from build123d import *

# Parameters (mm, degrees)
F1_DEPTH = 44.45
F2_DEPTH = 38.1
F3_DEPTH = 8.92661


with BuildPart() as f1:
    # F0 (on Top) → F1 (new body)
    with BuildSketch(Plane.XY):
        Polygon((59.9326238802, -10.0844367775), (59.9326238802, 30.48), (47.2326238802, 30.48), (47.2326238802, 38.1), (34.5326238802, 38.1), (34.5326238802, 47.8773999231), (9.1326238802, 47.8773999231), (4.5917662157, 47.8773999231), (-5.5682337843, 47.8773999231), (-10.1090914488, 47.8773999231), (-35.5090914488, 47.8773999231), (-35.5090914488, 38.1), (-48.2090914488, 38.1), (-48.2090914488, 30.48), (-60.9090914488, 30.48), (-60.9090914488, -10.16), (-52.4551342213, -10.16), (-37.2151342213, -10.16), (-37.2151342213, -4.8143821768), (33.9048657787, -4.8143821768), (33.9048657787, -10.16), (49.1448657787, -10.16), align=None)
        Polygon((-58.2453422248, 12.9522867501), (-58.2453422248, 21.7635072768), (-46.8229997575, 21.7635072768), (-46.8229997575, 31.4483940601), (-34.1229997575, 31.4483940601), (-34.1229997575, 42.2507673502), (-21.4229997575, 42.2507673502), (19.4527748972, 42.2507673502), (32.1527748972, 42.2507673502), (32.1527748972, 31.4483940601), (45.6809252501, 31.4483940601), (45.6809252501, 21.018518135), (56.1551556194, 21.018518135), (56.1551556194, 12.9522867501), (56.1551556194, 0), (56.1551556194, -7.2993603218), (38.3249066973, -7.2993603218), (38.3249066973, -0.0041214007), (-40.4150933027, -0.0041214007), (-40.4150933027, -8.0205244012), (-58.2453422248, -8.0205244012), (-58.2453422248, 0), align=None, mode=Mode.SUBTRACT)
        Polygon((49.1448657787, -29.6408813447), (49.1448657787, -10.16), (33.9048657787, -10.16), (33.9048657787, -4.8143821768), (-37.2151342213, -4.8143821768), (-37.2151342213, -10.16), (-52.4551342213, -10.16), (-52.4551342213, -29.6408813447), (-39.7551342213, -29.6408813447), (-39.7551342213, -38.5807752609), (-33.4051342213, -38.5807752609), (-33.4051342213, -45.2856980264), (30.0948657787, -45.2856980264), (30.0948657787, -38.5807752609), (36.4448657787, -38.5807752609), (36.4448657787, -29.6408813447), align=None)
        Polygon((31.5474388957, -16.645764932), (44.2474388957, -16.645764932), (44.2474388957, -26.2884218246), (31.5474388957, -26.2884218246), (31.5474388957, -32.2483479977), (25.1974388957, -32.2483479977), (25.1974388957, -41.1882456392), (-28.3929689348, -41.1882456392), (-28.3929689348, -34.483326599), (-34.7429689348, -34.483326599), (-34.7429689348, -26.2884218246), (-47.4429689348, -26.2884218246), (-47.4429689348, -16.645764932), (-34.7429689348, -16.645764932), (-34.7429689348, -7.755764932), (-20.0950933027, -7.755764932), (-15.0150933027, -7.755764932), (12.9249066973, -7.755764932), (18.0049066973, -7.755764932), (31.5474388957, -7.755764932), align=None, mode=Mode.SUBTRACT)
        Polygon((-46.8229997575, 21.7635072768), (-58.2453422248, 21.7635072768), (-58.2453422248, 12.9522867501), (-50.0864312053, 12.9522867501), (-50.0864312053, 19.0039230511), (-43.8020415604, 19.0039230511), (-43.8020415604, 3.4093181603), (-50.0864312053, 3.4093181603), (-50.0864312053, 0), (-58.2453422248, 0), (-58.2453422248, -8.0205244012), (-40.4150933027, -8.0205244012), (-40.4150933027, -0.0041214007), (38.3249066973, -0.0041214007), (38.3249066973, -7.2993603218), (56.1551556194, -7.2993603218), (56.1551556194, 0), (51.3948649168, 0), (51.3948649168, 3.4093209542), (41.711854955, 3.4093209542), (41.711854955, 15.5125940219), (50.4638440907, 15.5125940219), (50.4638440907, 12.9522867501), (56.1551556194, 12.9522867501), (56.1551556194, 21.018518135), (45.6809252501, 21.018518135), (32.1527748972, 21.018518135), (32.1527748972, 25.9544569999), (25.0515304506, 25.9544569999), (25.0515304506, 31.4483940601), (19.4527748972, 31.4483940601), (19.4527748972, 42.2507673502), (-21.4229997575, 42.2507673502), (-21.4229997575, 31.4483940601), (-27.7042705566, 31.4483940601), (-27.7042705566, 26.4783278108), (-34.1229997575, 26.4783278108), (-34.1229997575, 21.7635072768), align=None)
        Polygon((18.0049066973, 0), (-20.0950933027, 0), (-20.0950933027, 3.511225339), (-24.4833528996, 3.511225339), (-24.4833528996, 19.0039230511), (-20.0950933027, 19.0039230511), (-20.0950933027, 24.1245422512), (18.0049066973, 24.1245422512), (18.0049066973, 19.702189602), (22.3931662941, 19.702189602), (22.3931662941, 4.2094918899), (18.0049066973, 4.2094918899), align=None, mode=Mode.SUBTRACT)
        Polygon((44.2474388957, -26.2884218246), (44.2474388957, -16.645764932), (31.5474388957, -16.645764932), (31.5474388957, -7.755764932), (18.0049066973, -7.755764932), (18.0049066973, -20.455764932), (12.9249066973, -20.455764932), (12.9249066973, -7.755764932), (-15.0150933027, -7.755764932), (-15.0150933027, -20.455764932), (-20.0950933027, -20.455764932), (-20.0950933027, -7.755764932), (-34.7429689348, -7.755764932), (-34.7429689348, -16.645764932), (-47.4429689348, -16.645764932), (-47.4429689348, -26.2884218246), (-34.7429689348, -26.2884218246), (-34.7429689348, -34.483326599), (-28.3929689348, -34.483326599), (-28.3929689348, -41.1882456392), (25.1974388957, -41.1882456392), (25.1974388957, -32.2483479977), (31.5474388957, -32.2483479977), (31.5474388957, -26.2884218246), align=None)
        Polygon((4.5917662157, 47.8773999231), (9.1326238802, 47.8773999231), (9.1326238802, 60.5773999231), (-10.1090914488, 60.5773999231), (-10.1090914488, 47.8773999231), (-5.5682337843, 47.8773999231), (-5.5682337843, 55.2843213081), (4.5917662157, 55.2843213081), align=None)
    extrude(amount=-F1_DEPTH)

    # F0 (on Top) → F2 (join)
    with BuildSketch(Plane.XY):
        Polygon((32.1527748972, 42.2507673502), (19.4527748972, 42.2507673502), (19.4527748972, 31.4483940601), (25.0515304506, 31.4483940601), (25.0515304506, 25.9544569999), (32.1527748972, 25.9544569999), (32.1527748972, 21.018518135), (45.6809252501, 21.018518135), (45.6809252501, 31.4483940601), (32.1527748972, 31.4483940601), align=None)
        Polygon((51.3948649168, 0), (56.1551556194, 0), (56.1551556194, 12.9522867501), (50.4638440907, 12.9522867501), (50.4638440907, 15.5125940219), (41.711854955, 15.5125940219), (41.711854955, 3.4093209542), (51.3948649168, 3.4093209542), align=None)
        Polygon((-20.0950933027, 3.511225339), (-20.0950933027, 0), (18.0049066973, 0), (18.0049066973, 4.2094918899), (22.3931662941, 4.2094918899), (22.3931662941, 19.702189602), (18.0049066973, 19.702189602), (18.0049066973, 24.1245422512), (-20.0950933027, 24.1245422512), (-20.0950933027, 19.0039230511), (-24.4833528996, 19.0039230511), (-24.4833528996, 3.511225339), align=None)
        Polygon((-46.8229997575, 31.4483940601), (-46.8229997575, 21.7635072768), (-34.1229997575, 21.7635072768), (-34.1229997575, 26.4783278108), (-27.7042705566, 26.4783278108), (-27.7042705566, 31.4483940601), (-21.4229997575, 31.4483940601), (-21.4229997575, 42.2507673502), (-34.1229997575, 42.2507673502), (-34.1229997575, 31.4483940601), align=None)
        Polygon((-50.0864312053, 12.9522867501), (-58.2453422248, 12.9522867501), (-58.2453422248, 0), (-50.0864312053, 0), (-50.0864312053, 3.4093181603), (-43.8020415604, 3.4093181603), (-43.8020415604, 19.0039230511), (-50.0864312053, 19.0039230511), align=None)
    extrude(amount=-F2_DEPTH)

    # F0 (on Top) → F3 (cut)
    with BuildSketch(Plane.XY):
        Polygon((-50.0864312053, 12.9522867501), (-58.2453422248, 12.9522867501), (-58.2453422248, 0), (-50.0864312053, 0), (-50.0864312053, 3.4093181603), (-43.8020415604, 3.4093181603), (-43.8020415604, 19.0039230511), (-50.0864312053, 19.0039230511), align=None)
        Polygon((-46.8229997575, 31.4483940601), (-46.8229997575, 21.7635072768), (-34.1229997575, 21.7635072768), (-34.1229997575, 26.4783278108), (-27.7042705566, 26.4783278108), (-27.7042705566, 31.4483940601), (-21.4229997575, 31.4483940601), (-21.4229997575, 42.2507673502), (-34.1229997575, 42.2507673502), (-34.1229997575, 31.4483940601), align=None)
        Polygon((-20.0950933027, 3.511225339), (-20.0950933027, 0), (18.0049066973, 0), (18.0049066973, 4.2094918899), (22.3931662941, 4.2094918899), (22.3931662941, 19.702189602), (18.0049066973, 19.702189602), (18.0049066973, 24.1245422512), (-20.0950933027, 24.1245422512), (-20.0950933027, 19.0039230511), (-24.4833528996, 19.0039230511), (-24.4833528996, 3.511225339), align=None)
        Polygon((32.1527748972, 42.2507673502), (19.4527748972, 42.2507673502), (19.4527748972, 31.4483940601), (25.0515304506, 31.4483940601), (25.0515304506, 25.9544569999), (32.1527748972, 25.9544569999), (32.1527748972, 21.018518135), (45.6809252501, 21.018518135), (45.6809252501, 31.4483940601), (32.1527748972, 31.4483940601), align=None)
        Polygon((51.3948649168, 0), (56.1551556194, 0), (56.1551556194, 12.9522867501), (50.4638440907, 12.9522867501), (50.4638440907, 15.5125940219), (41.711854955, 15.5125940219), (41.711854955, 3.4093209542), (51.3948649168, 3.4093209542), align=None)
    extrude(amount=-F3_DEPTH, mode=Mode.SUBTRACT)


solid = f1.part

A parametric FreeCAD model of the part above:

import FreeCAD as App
import Part
import Sketcher
from FreeCAD import Vector
Q = App.Units.Quantity

doc = App.newDocument("Part")
body = doc.addObject("PartDesign::Body", "Body")

# Sketch on XY plane
sketch1 = body.newObject("Sketcher::SketchObject", "Sketch")
sketch1.AttachmentSupport = (doc.getObject("XY_Plane"), [""])
sketch1.MapMode = "FlatFace"
sketch1.addGeometry([
    Part.LineSegment(Vector(59.9, -10.1, 0), Vector(59.9, 30.5, 0)),  # 0
    Part.LineSegment(Vector(59.9, 30.5, 0), Vector(47.2, 30.5, 0)),  # 1
    Part.LineSegment(Vector(47.2, 30.5, 0), Vector(47.2, 38.1, 0)),  # 2
    Part.LineSegment(Vector(47.2, 38.1, 0), Vector(34.5, 38.1, 0)),  # 3
    Part.LineSegment(Vector(34.5, 38.1, 0), Vector(34.5, 47.9, 0)),  # 4
    Part.LineSegment(Vector(34.5, 47.9, 0), Vector(9.1, 47.9, 0)),  # 5
    Part.LineSegment(Vector(9.1, 47.9, 0), Vector(9.1, 60.6, 0)),  # 6
    Part.LineSegment(Vector(9.1, 60.6, 0), Vector(-10.1, 60.6, 0)),  # 7
    Part.LineSegment(Vector(-10.1, 60.6, 0), Vector(-10.1, 47.9, 0)),  # 8
    Part.LineSegment(Vector(-10.1, 47.9, 0), Vector(-35.5, 47.9, 0)),  # 9
    Part.LineSegment(Vector(-35.5, 47.9, 0), Vector(-35.5, 38.1, 0)),  # 10
    Part.LineSegment(Vector(-35.5, 38.1, 0), Vector(-48.2, 38.1, 0)),  # 11
    Part.LineSegment(Vector(-48.2, 38.1, 0), Vector(-48.2, 30.5, 0)),  # 12
    Part.LineSegment(Vector(-48.2, 30.5, 0), Vector(-60.9, 30.5, 0)),  # 13
    Part.LineSegment(Vector(-60.9, 30.5, 0), Vector(-60.9, -10.2, 0)),  # 14
    Part.LineSegment(Vector(-60.9, -10.2, 0), Vector(-52.5, -10.2, 0)),  # 15
    Part.LineSegment(Vector(-52.5, -10.2, 0), Vector(-52.5, -29.6, 0)),  # 16
    Part.LineSegment(Vector(-52.5, -29.6, 0), Vector(-39.8, -29.6, 0)),  # 17
    Part.LineSegment(Vector(-39.8, -29.6, 0), Vector(-39.8, -38.6, 0)),  # 18
    Part.LineSegment(Vector(-39.8, -38.6, 0), Vector(-33.4, -38.6, 0)),  # 19
    Part.LineSegment(Vector(-33.4, -38.6, 0), Vector(-33.4, -45.3, 0)),  # 20
    Part.LineSegment(Vector(-33.4, -45.3, 0), Vector(30.1, -45.3, 0)),  # 21
    Part.LineSegment(Vector(30.1, -45.3, 0), Vector(30.1, -38.6, 0)),  # 22
    Part.LineSegment(Vector(30.1, -38.6, 0), Vector(36.4, -38.6, 0)),  # 23
    Part.LineSegment(Vector(36.4, -38.6, 0), Vector(36.4, -29.6, 0)),  # 24
    Part.LineSegment(Vector(36.4, -29.6, 0), Vector(49.1, -29.6, 0)),  # 25
    Part.LineSegment(Vector(49.1, -29.6, 0), Vector(49.1, -10.2, 0)),  # 26
    Part.LineSegment(Vector(49.1, -10.2, 0), Vector(59.9, -10.1, 0)),  # 27
    Part.LineSegment(Vector(4.6, 47.9, 0), Vector(-5.6, 47.9, 0)),  # 28
    Part.LineSegment(Vector(-5.6, 47.9, 0), Vector(-5.6, 55.3, 0)),  # 29
    Part.LineSegment(Vector(-5.6, 55.3, 0), Vector(4.6, 55.3, 0)),  # 30
    Part.LineSegment(Vector(4.6, 55.3, 0), Vector(4.6, 47.9, 0)),  # 31
    Part.LineSegment(Vector(-20.1, -7.8, 0), Vector(-15, -7.8, 0)),  # 32
    Part.LineSegment(Vector(-15, -7.8, 0), Vector(-15, -20.5, 0)),  # 33
    Part.LineSegment(Vector(-15, -20.5, 0), Vector(-20.1, -20.5, 0)),  # 34
    Part.LineSegment(Vector(-20.1, -20.5, 0), Vector(-20.1, -7.8, 0)),  # 35
    Part.LineSegment(Vector(12.9, -7.8, 0), Vector(18, -7.8, 0)),  # 36
    Part.LineSegment(Vector(18, -7.8, 0), Vector(18, -20.5, 0)),  # 37
    Part.LineSegment(Vector(18, -20.5, 0), Vector(12.9, -20.5, 0)),  # 38
    Part.LineSegment(Vector(12.9, -20.5, 0), Vector(12.9, -7.8, 0)),  # 39
    Part.LineSegment(Vector(-58.2, 0, 0), Vector(-58.2, 13, 0)),  # 40
    Part.LineSegment(Vector(-58.2, 13, 0), Vector(-50.1, 13, 0)),  # 41
    Part.LineSegment(Vector(-50.1, 13, 0), Vector(-50.1, 19, 0)),  # 42
    Part.LineSegment(Vector(-50.1, 19, 0), Vector(-43.8, 19, 0)),  # 43
    Part.LineSegment(Vector(-43.8, 19, 0), Vector(-43.8, 3.4, 0)),  # 44
    Part.LineSegment(Vector(-43.8, 3.4, 0), Vector(-50.1, 3.4, 0)),  # 45
    Part.LineSegment(Vector(-50.1, 3.4, 0), Vector(-50.1, 0, 0)),  # 46
    Part.LineSegment(Vector(-50.1, 0, 0), Vector(-58.2, 0, 0)),  # 47
    Part.LineSegment(Vector(18, 4.2, 0), Vector(18, 0, 0)),  # 48
    Part.LineSegment(Vector(18, 0, 0), Vector(-20.1, 0, 0)),  # 49
    Part.LineSegment(Vector(-20.1, 0, 0), Vector(-20.1, 3.5, 0)),  # 50
    Part.LineSegment(Vector(-20.1, 3.5, 0), Vector(-24.5, 3.5, 0)),  # 51
    Part.LineSegment(Vector(-24.5, 3.5, 0), Vector(-24.5, 19, 0)),  # 52
    Part.LineSegment(Vector(-24.5, 19, 0), Vector(-20.1, 19, 0)),  # 53
    Part.LineSegment(Vector(-20.1, 19, 0), Vector(-20.1, 24.1, 0)),  # 54
    Part.LineSegment(Vector(-20.1, 24.1, 0), Vector(18, 24.1, 0)),  # 55
    Part.LineSegment(Vector(18, 24.1, 0), Vector(18, 19.7, 0)),  # 56
    Part.LineSegment(Vector(18, 19.7, 0), Vector(22.4, 19.7, 0)),  # 57
    Part.LineSegment(Vector(22.4, 19.7, 0), Vector(22.4, 4.2, 0)),  # 58
    Part.LineSegment(Vector(22.4, 4.2, 0), Vector(18, 4.2, 0)),  # 59
    Part.LineSegment(Vector(-46.8, 21.8, 0), Vector(-46.8, 31.4, 0)),  # 60
    Part.LineSegment(Vector(-46.8, 31.4, 0), Vector(-34.1, 31.4, 0)),  # 61
    Part.LineSegment(Vector(-34.1, 31.4, 0), Vector(-34.1, 42.3, 0)),  # 62
    Part.LineSegment(Vector(-34.1, 42.3, 0), Vector(-21.4, 42.3, 0)),  # 63
    Part.LineSegment(Vector(-21.4, 42.3, 0), Vector(-21.4, 31.4, 0)),  # 64
    Part.LineSegment(Vector(-21.4, 31.4, 0), Vector(-27.7, 31.4, 0)),  # 65
    Part.LineSegment(Vector(-27.7, 31.4, 0), Vector(-27.7, 26.5, 0)),  # 66
    Part.LineSegment(Vector(-27.7, 26.5, 0), Vector(-34.1, 26.5, 0)),  # 67
    Part.LineSegment(Vector(-34.1, 26.5, 0), Vector(-34.1, 21.8, 0)),  # 68
    Part.LineSegment(Vector(-34.1, 21.8, 0), Vector(-46.8, 21.8, 0)),  # 69
    Part.LineSegment(Vector(56.2, 13, 0), Vector(56.2, 0, 0)),  # 70
    Part.LineSegment(Vector(56.2, 0, 0), Vector(51.4, 0, 0)),  # 71
    Part.LineSegment(Vector(51.4, 0, 0), Vector(51.4, 3.4, 0)),  # 72
    Part.LineSegment(Vector(51.4, 3.4, 0), Vector(41.7, 3.4, 0)),  # 73
    Part.LineSegment(Vector(41.7, 3.4, 0), Vector(41.7, 15.5, 0)),  # 74
    Part.LineSegment(Vector(41.7, 15.5, 0), Vector(50.5, 15.5, 0)),  # 75
    Part.LineSegment(Vector(50.5, 15.5, 0), Vector(50.5, 13, 0)),  # 76
    Part.LineSegment(Vector(50.5, 13, 0), Vector(56.2, 13, 0)),  # 77
    Part.LineSegment(Vector(19.5, 42.3, 0), Vector(32.2, 42.3, 0)),  # 78
    Part.LineSegment(Vector(32.2, 42.3, 0), Vector(32.2, 31.4, 0)),  # 79
    Part.LineSegment(Vector(32.2, 31.4, 0), Vector(45.7, 31.4, 0)),  # 80
    Part.LineSegment(Vector(45.7, 31.4, 0), Vector(45.7, 21, 0)),  # 81
    Part.LineSegment(Vector(45.7, 21, 0), Vector(32.2, 21, 0)),  # 82
    Part.LineSegment(Vector(32.2, 21, 0), Vector(32.2, 26, 0)),  # 83
    Part.LineSegment(Vector(32.2, 26, 0), Vector(25.1, 26, 0)),  # 84
    Part.LineSegment(Vector(25.1, 26, 0), Vector(25.1, 31.4, 0)),  # 85
    Part.LineSegment(Vector(25.1, 31.4, 0), Vector(19.5, 31.4, 0)),  # 86
    Part.LineSegment(Vector(19.5, 31.4, 0), Vector(19.5, 42.3, 0)),  # 87
], False)
sketch1.addConstraint([
    Sketcher.Constraint("Coincident", 0, 2, 1, 1),
    Sketcher.Constraint("Coincident", 1, 2, 2, 1),
    Sketcher.Constraint("Coincident", 2, 2, 3, 1),
    Sketcher.Constraint("Coincident", 3, 2, 4, 1),
    Sketcher.Constraint("Coincident", 4, 2, 5, 1),
    Sketcher.Constraint("Coincident", 5, 2, 6, 1),
    Sketcher.Constraint("Coincident", 6, 2, 7, 1),
    Sketcher.Constraint("Coincident", 7, 2, 8, 1),
    Sketcher.Constraint("Coincident", 8, 2, 9, 1),
    Sketcher.Constraint("Coincident", 9, 2, 10, 1),
    Sketcher.Constraint("Coincident", 10, 2, 11, 1),
    Sketcher.Constraint("Coincident", 11, 2, 12, 1),
    Sketcher.Constraint("Coincident", 12, 2, 13, 1),
    Sketcher.Constraint("Coincident", 13, 2, 14, 1),
    Sketcher.Constraint("Coincident", 14, 2, 15, 1),
    Sketcher.Constraint("Coincident", 15, 2, 16, 1),
    Sketcher.Constraint("Coincident", 16, 2, 17, 1),
    Sketcher.Constraint("Coincident", 17, 2, 18, 1),
    Sketcher.Constraint("Coincident", 18, 2, 19, 1),
    Sketcher.Constraint("Coincident", 19, 2, 20, 1),
    Sketcher.Constraint("Coincident", 20, 2, 21, 1),
    Sketcher.Constraint("Coincident", 21, 2, 22, 1),
    Sketcher.Constraint("Coincident", 22, 2, 23, 1),
    Sketcher.Constraint("Coincident", 23, 2, 24, 1),
    Sketcher.Constraint("Coincident", 24, 2, 25, 1),
    Sketcher.Constraint("Coincident", 25, 2, 26, 1),
    Sketcher.Constraint("Coincident", 26, 2, 27, 1),
    Sketcher.Constraint("Coincident", 27, 2, 0, 1),
    Sketcher.Constraint("Coincident", 28, 2, 29, 1),
    Sketcher.Constraint("Coincident", 29, 2, 30, 1),
    Sketcher.Constraint("Coincident", 30, 2, 31, 1),
    Sketcher.Constraint("Coincident", 31, 2, 28, 1),
    Sketcher.Constraint("Coincident", 32, 2, 33, 1),
    Sketcher.Constraint("Coincident", 33, 2, 34, 1),
    Sketcher.Constraint("Coincident", 34, 2, 35, 1),
    Sketcher.Constraint("Coincident", 35, 2, 32, 1),
    Sketcher.Constraint("Coincident", 36, 2, 37, 1),
    Sketcher.Constraint("Coincident", 37, 2, 38, 1),
    Sketcher.Constraint("Coincident", 38, 2, 39, 1),
    Sketcher.Constraint("Coincident", 39, 2, 36, 1),
    Sketcher.Constraint("Coincident", 40, 2, 41, 1),
    Sketcher.Constraint("Coincident", 41, 2, 42, 1),
    Sketcher.Constraint("Coincident", 42, 2, 43, 1),
    Sketcher.Constraint("Coincident", 43, 2, 44, 1),
    Sketcher.Constraint("Coincident", 44, 2, 45, 1),
    Sketcher.Constraint("Coincident", 45, 2, 46, 1),
    Sketcher.Constraint("Coincident", 46, 2, 47, 1),
    Sketcher.Constraint("Coincident", 47, 2, 40, 1),
    Sketcher.Constraint("Coincident", 48, 2, 49, 1),
    Sketcher.Constraint("Coincident", 49, 2, 50, 1),
    Sketcher.Constraint("Coincident", 50, 2, 51, 1),
    Sketcher.Constraint("Coincident", 51, 2, 52, 1),
    Sketcher.Constraint("Coincident", 52, 2, 53, 1),
    Sketcher.Constraint("Coincident", 53, 2, 54, 1),
    Sketcher.Constraint("Coincident", 54, 2, 55, 1),
    Sketcher.Constraint("Coincident", 55, 2, 56, 1),
    Sketcher.Constraint("Coincident", 56, 2, 57, 1),
    Sketcher.Constraint("Coincident", 57, 2, 58, 1),
    Sketcher.Constraint("Coincident", 58, 2, 59, 1),
    Sketcher.Constraint("Coincident", 59, 2, 48, 1),
    Sketcher.Constraint("Coincident", 60, 2, 61, 1),
    Sketcher.Constraint("Coincident", 61, 2, 62, 1),
    Sketcher.Constraint("Coincident", 62, 2, 63, 1),
    Sketcher.Constraint("Coincident", 63, 2, 64, 1),
    Sketcher.Constraint("Coincident", 64, 2, 65, 1),
    Sketcher.Constraint("Coincident", 65, 2, 66, 1),
    Sketcher.Constraint("Coincident", 66, 2, 67, 1),
    Sketcher.Constraint("Coincident", 67, 2, 68, 1),
    Sketcher.Constraint("Coincident", 68, 2, 69, 1),
    Sketcher.Constraint("Coincident", 69, 2, 60, 1),
    Sketcher.Constraint("Coincident", 70, 2, 71, 1),
    Sketcher.Constraint("Coincident", 71, 2, 72, 1),
    Sketcher.Constraint("Coincident", 72, 2, 73, 1),
    Sketcher.Constraint("Coincident", 73, 2, 74, 1),
    Sketcher.Constraint("Coincident", 74, 2, 75, 1),
    Sketcher.Constraint("Coincident", 75, 2, 76, 1),
    Sketcher.Constraint("Coincident", 76, 2, 77, 1),
    Sketcher.Constraint("Coincident", 77, 2, 70, 1),
    Sketcher.Constraint("Coincident", 78, 2, 79, 1),
    Sketcher.Constraint("Coincident", 79, 2, 80, 1),
    Sketcher.Constraint("Coincident", 80, 2, 81, 1),
    Sketcher.Constraint("Coincident", 81, 2, 82, 1),
    Sketcher.Constraint("Coincident", 82, 2, 83, 1),
    Sketcher.Constraint("Coincident", 83, 2, 84, 1),
    Sketcher.Constraint("Coincident", 84, 2, 85, 1),
    Sketcher.Constraint("Coincident", 85, 2, 86, 1),
    Sketcher.Constraint("Coincident", 86, 2, 87, 1),
    Sketcher.Constraint("Coincident", 87, 2, 78, 1),
    Sketcher.Constraint("Vertical", 0),
    Sketcher.Constraint("Horizontal", 1),
    Sketcher.Constraint("Vertical", 2),
    Sketcher.Constraint("Horizontal", 3),
    Sketcher.Constraint("Vertical", 4),
    Sketcher.Constraint("Horizontal", 5),
    Sketcher.Constraint("Vertical", 6),
    Sketcher.Constraint("Horizontal", 7),
    Sketcher.Constraint("Vertical", 8),
    Sketcher.Constraint("Horizontal", 9),
    Sketcher.Constraint("Vertical", 10),
    Sketcher.Constraint("Horizontal", 11),
    Sketcher.Constraint("Vertical", 12),
    Sketcher.Constraint("Horizontal", 13),
    Sketcher.Constraint("Vertical", 14),
    Sketcher.Constraint("Horizontal", 15),
    Sketcher.Constraint("Vertical", 16),
    Sketcher.Constraint("Horizontal", 17),
    Sketcher.Constraint("Vertical", 18),
    Sketcher.Constraint("Horizontal", 19),
    Sketcher.Constraint("Vertical", 20),
    Sketcher.Constraint("Horizontal", 21),
    Sketcher.Constraint("Vertical", 22),
    Sketcher.Constraint("Horizontal", 23),
    Sketcher.Constraint("Vertical", 24),
    Sketcher.Constraint("Horizontal", 25),
    Sketcher.Constraint("Vertical", 26),
    Sketcher.Constraint("Horizontal", 28),
    Sketcher.Constraint("Vertical", 29),
    Sketcher.Constraint("Horizontal", 30),
    Sketcher.Constraint("Vertical", 31),
    Sketcher.Constraint("Horizontal", 32),
    Sketcher.Constraint("Vertical", 33),
    Sketcher.Constraint("Horizontal", 34),
    Sketcher.Constraint("Vertical", 35),
    Sketcher.Constraint("Horizontal", 36),
    Sketcher.Constraint("Vertical", 37),
    Sketcher.Constraint("Horizontal", 38),
    Sketcher.Constraint("Vertical", 39),
    Sketcher.Constraint("Vertical", 40),
    Sketcher.Constraint("Horizontal", 41),
    Sketcher.Constraint("Vertical", 42),
    Sketcher.Constraint("Horizontal", 43),
    Sketcher.Constraint("Vertical", 44),
    Sketcher.Constraint("Horizontal", 45),
    Sketcher.Constraint("Vertical", 46),
    Sketcher.Constraint("Horizontal", 47),
    Sketcher.Constraint("Vertical", 48),
    Sketcher.Constraint("Horizontal", 49),
    Sketcher.Constraint("Vertical", 50),
    Sketcher.Constraint("Horizontal", 51),
    Sketcher.Constraint("Vertical", 52),
    Sketcher.Constraint("Horizontal", 53),
    Sketcher.Constraint("Vertical", 54),
    Sketcher.Constraint("Horizontal", 55),
    Sketcher.Constraint("Vertical", 56),
    Sketcher.Constraint("Horizontal", 57),
    Sketcher.Constraint("Vertical", 58),
    Sketcher.Constraint("Horizontal", 59),
    Sketcher.Constraint("Vertical", 60),
    Sketcher.Constraint("Horizontal", 61),
    Sketcher.Constraint("Vertical", 62),
    Sketcher.Constraint("Horizontal", 63),
    Sketcher.Constraint("Vertical", 64),
    Sketcher.Constraint("Horizontal", 65),
    Sketcher.Constraint("Vertical", 66),
    Sketcher.Constraint("Horizontal", 67),
    Sketcher.Constraint("Vertical", 68),
    Sketcher.Constraint("Horizontal", 69),
    Sketcher.Constraint("Vertical", 70),
    Sketcher.Constraint("Horizontal", 71),
    Sketcher.Constraint("Vertical", 72),
    Sketcher.Constraint("Horizontal", 73),
    Sketcher.Constraint("Vertical", 74),
    Sketcher.Constraint("Horizontal", 75),
    Sketcher.Constraint("Vertical", 76),
    Sketcher.Constraint("Horizontal", 77),
    Sketcher.Constraint("Horizontal", 78),
    Sketcher.Constraint("Vertical", 79),
    Sketcher.Constraint("Horizontal", 80),
    Sketcher.Constraint("Vertical", 81),
    Sketcher.Constraint("Horizontal", 82),
    Sketcher.Constraint("Vertical", 83),
    Sketcher.Constraint("Horizontal", 84),
    Sketcher.Constraint("Vertical", 85),
    Sketcher.Constraint("Horizontal", 86),
    Sketcher.Constraint("Vertical", 87),
    Sketcher.Constraint("PointOnObject", 46, 2, -1),
    Sketcher.Constraint("PointOnObject", 48, 2, -1),
    Sketcher.Constraint("PointOnObject", 70, 2, -1),
    Sketcher.Constraint("Horizontal", 5, 2, 8, 2),
    Sketcher.Constraint("Horizontal", 3, 2, 10, 2),
    Sketcher.Constraint("Horizontal", 1, 2, 12, 2),
    Sketcher.Constraint("Horizontal", 19, 2, 22, 2),
    Sketcher.Constraint("Horizontal", 17, 2, 24, 2),
    Sketcher.Constraint("Horizontal", 15, 2, 26, 2),
    Sketcher.Constraint("Horizontal", 9, 2, 28, 2),
    Sketcher.Constraint("Horizontal", 35, 2, 36, 2),
    Sketcher.Constraint("Horizontal", 34, 2, 37, 2),
    Sketcher.Constraint("Horizontal", 43, 2, 52, 2),
    Sketcher.Constraint("Horizontal", 61, 2, 64, 2),
    Sketcher.Constraint("Horizontal", 41, 2, 76, 2),
    Sketcher.Constraint("Horizontal", 63, 2, 78, 2),
    Sketcher.Constraint("Horizontal", 65, 2, 79, 2),
    Sketcher.Constraint("Horizontal", 80, 2, 85, 2),
    Sketcher.Constraint("Vertical", 42, 2, 45, 2),
    Sketcher.Constraint("Vertical", 37, 2, 48, 2),
    Sketcher.Constraint("Vertical", 35, 2, 49, 2),
    Sketcher.Constraint("Vertical", 50, 2, 53, 2),
    Sketcher.Constraint("Vertical", 48, 2, 55, 2),
    Sketcher.Constraint("Vertical", 62, 2, 67, 2),
    Sketcher.Constraint("Vertical", 79, 2, 82, 2),
    Sketcher.Constraint("Equal", 1, 3),
    Sketcher.Constraint("Equal", 5, 9),
    Sketcher.Constraint("Equal", 3, 11),
    Sketcher.Constraint("Equal", 11, 13),
    Sketcher.Constraint("Equal", 13, 17),
    Sketcher.Constraint("Equal", 19, 23),
    Sketcher.Constraint("Equal", 17, 25),
    Sketcher.Constraint("Equal", 34, 36),
    Sketcher.Constraint("Equal", 53, 57),
    Sketcher.Constraint("Equal", 25, 61),
    Sketcher.Constraint("Equal", 61, 63),
    Sketcher.Constraint("Equal", 69, 78),
    Sketcher.Constraint("Equal", 78, 6),
    Sketcher.Constraint("Equal", 8, 33),
    Sketcher.Constraint("Equal", 52, 58),
    Sketcher.Constraint("DistanceX", 5, 2, 5, 1, Q("1 in")),
    Sketcher.Constraint("DistanceX", 1, 2, 1, 1, Q("0.5 in")),
    Sketcher.Constraint("DistanceX", 21, 1, 21, 2, Q("2.5 in")),
    Sketcher.Constraint("DistanceX", 28, 2, 28, 1, Q("0.4 in")),
    Sketcher.Constraint("DistanceX", 32, 1, 32, 2, Q("0.2 in")),
    Sketcher.Constraint("DistanceX", 49, 2, 49, 1, Q("1.5 in")),
    Sketcher.Constraint("DistanceY", 2, 1, 2, 2, Q("0.3 in")),
    Sketcher.Constraint("DistanceY", 14, 2, 14, 1, Q("1.6 in")),
    Sketcher.Constraint("DistanceX", 19, 1, 19, 2, Q("0.25 in")),
    Sketcher.Constraint("DistanceY", -1, 1, 0, 2, Q("1.2 in")),
    Sketcher.Constraint("DistanceY", 4, 1, 4, 2, 9.7774),
    Sketcher.Constraint("DistanceX", 41, 1, 41, 2, 8.158911),
    Sketcher.Constraint("DistanceX", 43, 1, 43, 2, 6.28439),
    Sketcher.Constraint("DistanceX", 51, 2, 51, 1, 4.38826),
    Sketcher.Constraint("DistanceX", 65, 2, 65, 1, 6.281271),
    Sketcher.Constraint("DistanceX", 71, 2, 71, 1, 4.760291),
    Sketcher.Constraint("DistanceX", 73, 2, 73, 1, 9.68301),
    Sketcher.Constraint("DistanceX", 75, 1, 75, 2, 8.751989),
    Sketcher.Constraint("DistanceX", 80, 1, 80, 2, 13.52815),
    Sketcher.Constraint("DistanceY", 16, 2, 16, 1, 19.480881),
    Sketcher.Constraint("DistanceY", 29, 1, 29, 2, 7.406921),
    Sketcher.Constraint("DistanceY", 46, 2, 46, 1, 3.409318),
    Sketcher.Constraint("DistanceY", 48, 2, 48, 1, 4.209492),
    Sketcher.Constraint("DistanceY", 54, 1, 54, 2, 5.120619),
    Sketcher.Constraint("DistanceY", 68, 2, 68, 1, 4.714821),
    Sketcher.Constraint("DistanceY", 72, 1, 72, 2, 3.409321),
    Sketcher.Constraint("DistanceY", 83, 1, 83, 2, 4.935939),
    Sketcher.Constraint("DistanceY", 20, 2, -1, 1, 45.285698),
    Sketcher.Constraint("DistanceX", 60, 2, -1, 1, 46.823),
    Sketcher.Constraint("DistanceX", 7, 2, 7, 1, 19.241715),
    Sketcher.Constraint("DistanceX", 15, 1, 15, 2, 8.453957),
    Sketcher.Constraint("DistanceX", 84, 2, 84, 1, 7.101244),
    Sketcher.Constraint("DistanceY", 0, 1, 0, 2, 40.564437),
    Sketcher.Constraint("DistanceY", 18, 2, 18, 1, 8.939894),
    Sketcher.Constraint("DistanceY", 40, 1, 40, 2, 12.952287),
    Sketcher.Constraint("DistanceY", 42, 1, 42, 2, 6.051636),
    Sketcher.Constraint("DistanceY", 50, 1, 50, 2, 3.511225),
    Sketcher.Constraint("DistanceY", 60, 1, 60, 2, 9.684887),
    Sketcher.Constraint("DistanceY", 62, 1, 62, 2, 10.802373),
    Sketcher.Constraint("DistanceY", 74, 1, 74, 2, 12.103273),
    Sketcher.Constraint("DistanceY", 81, 2, 81, 1, 10.429876),
    Sketcher.Constraint("DistanceX", 7, 2, -1, 1, 10.109091),
    Sketcher.Constraint("DistanceX", 41, 2, -1, 1, 50.086431),
    Sketcher.Constraint("DistanceY", -1, 1, 81, 2, 21.018518),
    Sketcher.Constraint("DistanceX", -1, 1, 84, 2, 25.05153),
    Sketcher.Constraint("DistanceX", 28, 2, -1, 1, 5.568234),
    Sketcher.Constraint("DistanceX", 32, 2, -1, 1, 15.015093),
    Sketcher.Constraint("DistanceY", 32, 2, -1, 1, 7.755765),
    Sketcher.Constraint("DistanceX", -1, 1, 70, 2, 56.155156),
])
pad1 = body.newObject("PartDesign::Pad", "Pad")
pad1.Profile = sketch1
pad1.Length = Q("1.75 in")
pad1.Reversed = True

# Sketch on XY plane
sketch2 = body.newObject("Sketcher::SketchObject", "Sketch001")
sketch2.AttachmentSupport = (doc.getObject("XY_Plane"), [""])
sketch2.MapMode = "FlatFace"
sketch2.addGeometry([
    Part.LineSegment(Vector(32.2, 42.3, 0), Vector(19.5, 42.3, 0)),  # 0
    Part.LineSegment(Vector(19.5, 42.3, 0), Vector(19.5, 31.4, 0)),  # 1
    Part.LineSegment(Vector(19.5, 31.4, 0), Vector(25.1, 31.4, 0)),  # 2
    Part.LineSegment(Vector(25.1, 31.4, 0), Vector(25.1, 26, 0)),  # 3
    Part.LineSegment(Vector(25.1, 26, 0), Vector(32.2, 26, 0)),  # 4
    Part.LineSegment(Vector(32.2, 26, 0), Vector(32.2, 21, 0)),  # 5
    Part.LineSegment(Vector(32.2, 21, 0), Vector(45.7, 21, 0)),  # 6
    Part.LineSegment(Vector(45.7, 21, 0), Vector(45.7, 31.4, 0)),  # 7
    Part.LineSegment(Vector(45.7, 31.4, 0), Vector(32.2, 31.4, 0)),  # 8
    Part.LineSegment(Vector(32.2, 31.4, 0), Vector(32.2, 42.3, 0)),  # 9
    Part.LineSegment(Vector(51.4, 0, 0), Vector(56.2, 0, 0)),  # 10
    Part.LineSegment(Vector(56.2, 0, 0), Vector(56.2, 13, 0)),  # 11
    Part.LineSegment(Vector(56.2, 13, 0), Vector(50.5, 13, 0)),  # 12
    Part.LineSegment(Vector(50.5, 13, 0), Vector(50.5, 15.5, 0)),  # 13
    Part.LineSegment(Vector(50.5, 15.5, 0), Vector(41.7, 15.5, 0)),  # 14
    Part.LineSegment(Vector(41.7, 15.5, 0), Vector(41.7, 3.4, 0)),  # 15
    Part.LineSegment(Vector(41.7, 3.4, 0), Vector(51.4, 3.4, 0)),  # 16
    Part.LineSegment(Vector(51.4, 3.4, 0), Vector(51.4, 0, 0)),  # 17
    Part.LineSegment(Vector(-20.1, 3.5, 0), Vector(-20.1, 0, 0)),  # 18
    Part.LineSegment(Vector(-20.1, 0, 0), Vector(18, 0, 0)),  # 19
    Part.LineSegment(Vector(18, 0, 0), Vector(18, 4.2, 0)),  # 20
    Part.LineSegment(Vector(18, 4.2, 0), Vector(22.4, 4.2, 0)),  # 21
    Part.LineSegment(Vector(22.4, 4.2, 0), Vector(22.4, 19.7, 0)),  # 22
    Part.LineSegment(Vector(22.4, 19.7, 0), Vector(18, 19.7, 0)),  # 23
    Part.LineSegment(Vector(18, 19.7, 0), Vector(18, 24.1, 0)),  # 24
    Part.LineSegment(Vector(18, 24.1, 0), Vector(-20.1, 24.1, 0)),  # 25
    Part.LineSegment(Vector(-20.1, 24.1, 0), Vector(-20.1, 19, 0)),  # 26
    Part.LineSegment(Vector(-20.1, 19, 0), Vector(-24.5, 19, 0)),  # 27
    Part.LineSegment(Vector(-24.5, 19, 0), Vector(-24.5, 3.5, 0)),  # 28
    Part.LineSegment(Vector(-24.5, 3.5, 0), Vector(-20.1, 3.5, 0)),  # 29
    Part.LineSegment(Vector(-46.8, 31.4, 0), Vector(-46.8, 21.8, 0)),  # 30
    Part.LineSegment(Vector(-46.8, 21.8, 0), Vector(-34.1, 21.8, 0)),  # 31
    Part.LineSegment(Vector(-34.1, 21.8, 0), Vector(-34.1, 26.5, 0)),  # 32
    Part.LineSegment(Vector(-34.1, 26.5, 0), Vector(-27.7, 26.5, 0)),  # 33
    Part.LineSegment(Vector(-27.7, 26.5, 0), Vector(-27.7, 31.4, 0)),  # 34
    Part.LineSegment(Vector(-27.7, 31.4, 0), Vector(-21.4, 31.4, 0)),  # 35
    Part.LineSegment(Vector(-21.4, 31.4, 0), Vector(-21.4, 42.3, 0)),  # 36
    Part.LineSegment(Vector(-21.4, 42.3, 0), Vector(-34.1, 42.3, 0)),  # 37
    Part.LineSegment(Vector(-34.1, 42.3, 0), Vector(-34.1, 31.4, 0)),  # 38
    Part.LineSegment(Vector(-34.1, 31.4, 0), Vector(-46.8, 31.4, 0)),  # 39
    Part.LineSegment(Vector(-50.1, 13, 0), Vector(-58.2, 13, 0)),  # 40
    Part.LineSegment(Vector(-58.2, 13, 0), Vector(-58.2, 0, 0)),  # 41
    Part.LineSegment(Vector(-58.2, 0, 0), Vector(-50.1, 0, 0)),  # 42
    Part.LineSegment(Vector(-50.1, 0, 0), Vector(-50.1, 3.4, 0)),  # 43
    Part.LineSegment(Vector(-50.1, 3.4, 0), Vector(-43.8, 3.4, 0)),  # 44
    Part.LineSegment(Vector(-43.8, 3.4, 0), Vector(-43.8, 19, 0)),  # 45
    Part.LineSegment(Vector(-43.8, 19, 0), Vector(-50.1, 19, 0)),  # 46
    Part.LineSegment(Vector(-50.1, 19, 0), Vector(-50.1, 13, 0)),  # 47
], False)
sketch2.addConstraint([
    Sketcher.Constraint("Coincident", 0, 2, 1, 1),
    Sketcher.Constraint("Coincident", 1, 2, 2, 1),
    Sketcher.Constraint("Coincident", 2, 2, 3, 1),
    Sketcher.Constraint("Coincident", 3, 2, 4, 1),
    Sketcher.Constraint("Coincident", 4, 2, 5, 1),
    Sketcher.Constraint("Coincident", 5, 2, 6, 1),
    Sketcher.Constraint("Coincident", 6, 2, 7, 1),
    Sketcher.Constraint("Coincident", 7, 2, 8, 1),
    Sketcher.Constraint("Coincident", 8, 2, 9, 1),
    Sketcher.Constraint("Coincident", 9, 2, 0, 1),
    Sketcher.Constraint("Coincident", 10, 2, 11, 1),
    Sketcher.Constraint("Coincident", 11, 2, 12, 1),
    Sketcher.Constraint("Coincident", 12, 2, 13, 1),
    Sketcher.Constraint("Coincident", 13, 2, 14, 1),
    Sketcher.Constraint("Coincident", 14, 2, 15, 1),
    Sketcher.Constraint("Coincident", 15, 2, 16, 1),
    Sketcher.Constraint("Coincident", 16, 2, 17, 1),
    Sketcher.Constraint("Coincident", 17, 2, 10, 1),
    Sketcher.Constraint("Coincident", 18, 2, 19, 1),
    Sketcher.Constraint("Coincident", 19, 2, 20, 1),
    Sketcher.Constraint("Coincident", 20, 2, 21, 1),
    Sketcher.Constraint("Coincident", 21, 2, 22, 1),
    Sketcher.Constraint("Coincident", 22, 2, 23, 1),
    Sketcher.Constraint("Coincident", 23, 2, 24, 1),
    Sketcher.Constraint("Coincident", 24, 2, 25, 1),
    Sketcher.Constraint("Coincident", 25, 2, 26, 1),
    Sketcher.Constraint("Coincident", 26, 2, 27, 1),
    Sketcher.Constraint("Coincident", 27, 2, 28, 1),
    Sketcher.Constraint("Coincident", 28, 2, 29, 1),
    Sketcher.Constraint("Coincident", 29, 2, 18, 1),
    Sketcher.Constraint("Coincident", 30, 2, 31, 1),
    Sketcher.Constraint("Coincident", 31, 2, 32, 1),
    Sketcher.Constraint("Coincident", 32, 2, 33, 1),
    Sketcher.Constraint("Coincident", 33, 2, 34, 1),
    Sketcher.Constraint("Coincident", 34, 2, 35, 1),
    Sketcher.Constraint("Coincident", 35, 2, 36, 1),
    Sketcher.Constraint("Coincident", 36, 2, 37, 1),
    Sketcher.Constraint("Coincident", 37, 2, 38, 1),
    Sketcher.Constraint("Coincident", 38, 2, 39, 1),
    Sketcher.Constraint("Coincident", 39, 2, 30, 1),
    Sketcher.Constraint("Coincident", 40, 2, 41, 1),
    Sketcher.Constraint("Coincident", 41, 2, 42, 1),
    Sketcher.Constraint("Coincident", 42, 2, 43, 1),
    Sketcher.Constraint("Coincident", 43, 2, 44, 1),
    Sketcher.Constraint("Coincident", 44, 2, 45, 1),
    Sketcher.Constraint("Coincident", 45, 2, 46, 1),
    Sketcher.Constraint("Coincident", 46, 2, 47, 1),
    Sketcher.Constraint("Coincident", 47, 2, 40, 1),
    Sketcher.Constraint("Horizontal", 0),
    Sketcher.Constraint("Vertical", 1),
    Sketcher.Constraint("Horizontal", 2),
    Sketcher.Constraint("Vertical", 3),
    Sketcher.Constraint("Horizontal", 4),
    Sketcher.Constraint("Vertical", 5),
    Sketcher.Constraint("Horizontal", 6),
    Sketcher.Constraint("Vertical", 7),
    Sketcher.Constraint("Horizontal", 8),
    Sketcher.Constraint("Vertical", 9),
    Sketcher.Constraint("Horizontal", 10),
    Sketcher.Constraint("Vertical", 11),
    Sketcher.Constraint("Horizontal", 12),
    Sketcher.Constraint("Vertical", 13),
    Sketcher.Constraint("Horizontal", 14),
    Sketcher.Constraint("Vertical", 15),
    Sketcher.Constraint("Horizontal", 16),
    Sketcher.Constraint("Vertical", 17),
    Sketcher.Constraint("Vertical", 18),
    Sketcher.Constraint("Horizontal", 19),
    Sketcher.Constraint("Vertical", 20),
    Sketcher.Constraint("Horizontal", 21),
    Sketcher.Constraint("Vertical", 22),
    Sketcher.Constraint("Horizontal", 23),
    Sketcher.Constraint("Vertical", 24),
    Sketcher.Constraint("Horizontal", 25),
    Sketcher.Constraint("Vertical", 26),
    Sketcher.Constraint("Horizontal", 27),
    Sketcher.Constraint("Vertical", 28),
    Sketcher.Constraint("Horizontal", 29),
    Sketcher.Constraint("Vertical", 30),
    Sketcher.Constraint("Horizontal", 31),
    Sketcher.Constraint("Vertical", 32),
    Sketcher.Constraint("Horizontal", 33),
    Sketcher.Constraint("Vertical", 34),
    Sketcher.Constraint("Horizontal", 35),
    Sketcher.Constraint("Vertical", 36),
    Sketcher.Constraint("Horizontal", 37),
    Sketcher.Constraint("Vertical", 38),
    Sketcher.Constraint("Horizontal", 39),
    Sketcher.Constraint("Horizontal", 40),
    Sketcher.Constraint("Vertical", 41),
    Sketcher.Constraint("Horizontal", 42),
    Sketcher.Constraint("Vertical", 43),
    Sketcher.Constraint("Horizontal", 44),
    Sketcher.Constraint("Vertical", 45),
    Sketcher.Constraint("Horizontal", 46),
    Sketcher.Constraint("Vertical", 47),
    Sketcher.Constraint("PointOnObject", 10, 2, -1),
    Sketcher.Constraint("PointOnObject", 18, 2, -1),
    Sketcher.Constraint("PointOnObject", 41, 2, -1),
    Sketcher.Constraint("Horizontal", 2, 2, 7, 2),
    Sketcher.Constraint("Horizontal", 8, 2, 34, 2),
    Sketcher.Constraint("Horizontal", 9, 2, 36, 2),
    Sketcher.Constraint("Horizontal", 35, 2, 38, 2),
    Sketcher.Constraint("Horizontal", 12, 2, 40, 2),
    Sketcher.Constraint("Horizontal", 27, 2, 45, 2),
    Sketcher.Constraint("Vertical", 5, 2, 8, 2),
    Sketcher.Constraint("Vertical", 20, 2, 23, 2),
    Sketcher.Constraint("Vertical", 18, 2, 25, 2),
    Sketcher.Constraint("Vertical", 32, 2, 37, 2),
    Sketcher.Constraint("Vertical", 43, 2, 46, 2),
    Sketcher.Constraint("Equal", 23, 27),
    Sketcher.Constraint("Equal", 0, 31),
    Sketcher.Constraint("Equal", 31, 37),
    Sketcher.Constraint("Equal", 22, 28),
    Sketcher.Constraint("DistanceX", 0, 2, 0, 1, Q("0.5 in")),
    Sketcher.Constraint("DistanceX", 19, 1, 19, 2, Q("1.5 in")),
    Sketcher.Constraint("DistanceX", 6, 1, 6, 2, 13.52815),
    Sketcher.Constraint("DistanceX", 10, 1, 10, 2, 4.760291),
    Sketcher.Constraint("DistanceX", 12, 2, 12, 1, 5.691312),
    Sketcher.Constraint("DistanceX", 14, 2, 14, 1, 8.751989),
    Sketcher.Constraint("DistanceX", 21, 1, 21, 2, 4.38826),
    Sketcher.Constraint("DistanceX", 33, 1, 33, 2, 6.418729),
    Sketcher.Constraint("DistanceX", 40, 2, 40, 1, 8.158911),
    Sketcher.Constraint("DistanceX", 44, 1, 44, 2, 6.28439),
    Sketcher.Constraint("DistanceY", 5, 2, 5, 1, 4.935939),
    Sketcher.Constraint("DistanceY", 17, 2, 17, 1, 3.409321),
    Sketcher.Constraint("DistanceY", 20, 1, 20, 2, 4.209492),
    Sketcher.Constraint("DistanceY", 26, 2, 26, 1, 5.120619),
    Sketcher.Constraint("DistanceY", 32, 1, 32, 2, 4.714821),
    Sketcher.Constraint("DistanceY", 43, 1, 43, 2, 3.409318),
    Sketcher.Constraint("DistanceX", 30, 2, -1, 1, 46.823),
    Sketcher.Constraint("DistanceY", 13, 2, 7, 2, 15.9358),
    Sketcher.Constraint("DistanceX", 2, 1, 2, 2, 5.598756),
    Sketcher.Constraint("DistanceY", 1, 2, 1, 1, 10.802373),
    Sketcher.Constraint("DistanceY", 3, 2, 3, 1, 5.493937),
    Sketcher.Constraint("DistanceY", 11, 1, 11, 2, 12.952287),
    Sketcher.Constraint("DistanceY", 13, 1, 13, 2, 2.560307),
    Sketcher.Constraint("DistanceY", 18, 2, 18, 1, 3.511225),
    Sketcher.Constraint("DistanceY", 22, 1, 22, 2, 15.492698),
    Sketcher.Constraint("DistanceY", 30, 2, 30, 1, 9.684887),
    Sketcher.Constraint("DistanceX", -1, 1, 2, 2, 25.05153),
    Sketcher.Constraint("DistanceX", 42, 2, -1, 1, 50.086431),
    Sketcher.Constraint("DistanceX", 6, 2, 10, 2, 10.47423),
    Sketcher.Constraint("DistanceX", 18, 2, 1, 2, 39.547868),
])
pad2 = body.newObject("PartDesign::Pad", "Pad001")
pad2.Profile = sketch2
pad2.Length = Q("1.5 in")
pad2.Reversed = True

# Sketch on XY plane
sketch3 = body.newObject("Sketcher::SketchObject", "Sketch002")
sketch3.AttachmentSupport = (doc.getObject("XY_Plane"), [""])
sketch3.MapMode = "FlatFace"
sketch3.addGeometry([
    Part.LineSegment(Vector(-50.1, 13, 0), Vector(-58.2, 13, 0)),  # 0
    Part.LineSegment(Vector(-58.2, 13, 0), Vector(-58.2, 0, 0)),  # 1
    Part.LineSegment(Vector(-58.2, 0, 0), Vector(-50.1, 0, 0)),  # 2
    Part.LineSegment(Vector(-50.1, 0, 0), Vector(-50.1, 3.4, 0)),  # 3
    Part.LineSegment(Vector(-50.1, 3.4, 0), Vector(-43.8, 3.4, 0)),  # 4
    Part.LineSegment(Vector(-43.8, 3.4, 0), Vector(-43.8, 19, 0)),  # 5
    Part.LineSegment(Vector(-43.8, 19, 0), Vector(-50.1, 19, 0)),  # 6
    Part.LineSegment(Vector(-50.1, 19, 0), Vector(-50.1, 13, 0)),  # 7
    Part.LineSegment(Vector(-46.8, 31.4, 0), Vector(-46.8, 21.8, 0)),  # 8
    Part.LineSegment(Vector(-46.8, 21.8, 0), Vector(-34.1, 21.8, 0)),  # 9
    Part.LineSegment(Vector(-34.1, 21.8, 0), Vector(-34.1, 26.5, 0)),  # 10
    Part.LineSegment(Vector(-34.1, 26.5, 0), Vector(-27.7, 26.5, 0)),  # 11
    Part.LineSegment(Vector(-27.7, 26.5, 0), Vector(-27.7, 31.4, 0)),  # 12
    Part.LineSegment(Vector(-27.7, 31.4, 0), Vector(-21.4, 31.4, 0)),  # 13
    Part.LineSegment(Vector(-21.4, 31.4, 0), Vector(-21.4, 42.3, 0)),  # 14
    Part.LineSegment(Vector(-21.4, 42.3, 0), Vector(-34.1, 42.3, 0)),  # 15
    Part.LineSegment(Vector(-34.1, 42.3, 0), Vector(-34.1, 31.4, 0)),  # 16
    Part.LineSegment(Vector(-34.1, 31.4, 0), Vector(-46.8, 31.4, 0)),  # 17
    Part.LineSegment(Vector(-20.1, 3.5, 0), Vector(-20.1, 0, 0)),  # 18
    Part.LineSegment(Vector(-20.1, 0, 0), Vector(18, 0, 0)),  # 19
    Part.LineSegment(Vector(18, 0, 0), Vector(18, 4.2, 0)),  # 20
    Part.LineSegment(Vector(18, 4.2, 0), Vector(22.4, 4.2, 0)),  # 21
    Part.LineSegment(Vector(22.4, 4.2, 0), Vector(22.4, 19.7, 0)),  # 22
    Part.LineSegment(Vector(22.4, 19.7, 0), Vector(18, 19.7, 0)),  # 23
    Part.LineSegment(Vector(18, 19.7, 0), Vector(18, 24.1, 0)),  # 24
    Part.LineSegment(Vector(18, 24.1, 0), Vector(-20.1, 24.1, 0)),  # 25
    Part.LineSegment(Vector(-20.1, 24.1, 0), Vector(-20.1, 19, 0)),  # 26
    Part.LineSegment(Vector(-20.1, 19, 0), Vector(-24.5, 19, 0)),  # 27
    Part.LineSegment(Vector(-24.5, 19, 0), Vector(-24.5, 3.5, 0)),  # 28
    Part.LineSegment(Vector(-24.5, 3.5, 0), Vector(-20.1, 3.5, 0)),  # 29
    Part.LineSegment(Vector(32.2, 42.3, 0), Vector(19.5, 42.3, 0)),  # 30
    Part.LineSegment(Vector(19.5, 42.3, 0), Vector(19.5, 31.4, 0)),  # 31
    Part.LineSegment(Vector(19.5, 31.4, 0), Vector(25.1, 31.4, 0)),  # 32
    Part.LineSegment(Vector(25.1, 31.4, 0), Vector(25.1, 26, 0)),  # 33
    Part.LineSegment(Vector(25.1, 26, 0), Vector(32.2, 26, 0)),  # 34
    Part.LineSegment(Vector(32.2, 26, 0), Vector(32.2, 21, 0)),  # 35
    Part.LineSegment(Vector(32.2, 21, 0), Vector(45.7, 21, 0)),  # 36
    Part.LineSegment(Vector(45.7, 21, 0), Vector(45.7, 31.4, 0)),  # 37
    Part.LineSegment(Vector(45.7, 31.4, 0), Vector(32.2, 31.4, 0)),  # 38
    Part.LineSegment(Vector(32.2, 31.4, 0), Vector(32.2, 42.3, 0)),  # 39
    Part.LineSegment(Vector(51.4, 0, 0), Vector(56.2, 0, 0)),  # 40
    Part.LineSegment(Vector(56.2, 0, 0), Vector(56.2, 13, 0)),  # 41
    Part.LineSegment(Vector(56.2, 13, 0), Vector(50.5, 13, 0)),  # 42
    Part.LineSegment(Vector(50.5, 13, 0), Vector(50.5, 15.5, 0)),  # 43
    Part.LineSegment(Vector(50.5, 15.5, 0), Vector(41.7, 15.5, 0)),  # 44
    Part.LineSegment(Vector(41.7, 15.5, 0), Vector(41.7, 3.4, 0)),  # 45
    Part.LineSegment(Vector(41.7, 3.4, 0), Vector(51.4, 3.4, 0)),  # 46
    Part.LineSegment(Vector(51.4, 3.4, 0), Vector(51.4, 0, 0)),  # 47
], False)
sketch3.addConstraint([
    Sketcher.Constraint("Coincident", 0, 2, 1, 1),
    Sketcher.Constraint("Coincident", 1, 2, 2, 1),
    Sketcher.Constraint("Coincident", 2, 2, 3, 1),
    Sketcher.Constraint("Coincident", 3, 2, 4, 1),
    Sketcher.Constraint("Coincident", 4, 2, 5, 1),
    Sketcher.Constraint("Coincident", 5, 2, 6, 1),
    Sketcher.Constraint("Coincident", 6, 2, 7, 1),
    Sketcher.Constraint("Coincident", 7, 2, 0, 1),
    Sketcher.Constraint("Coincident", 8, 2, 9, 1),
    Sketcher.Constraint("Coincident", 9, 2, 10, 1),
    Sketcher.Constraint("Coincident", 10, 2, 11, 1),
    Sketcher.Constraint("Coincident", 11, 2, 12, 1),
    Sketcher.Constraint("Coincident", 12, 2, 13, 1),
    Sketcher.Constraint("Coincident", 13, 2, 14, 1),
    Sketcher.Constraint("Coincident", 14, 2, 15, 1),
    Sketcher.Constraint("Coincident", 15, 2, 16, 1),
    Sketcher.Constraint("Coincident", 16, 2, 17, 1),
    Sketcher.Constraint("Coincident", 17, 2, 8, 1),
    Sketcher.Constraint("Coincident", 18, 2, 19, 1),
    Sketcher.Constraint("Coincident", 19, 2, 20, 1),
    Sketcher.Constraint("Coincident", 20, 2, 21, 1),
    Sketcher.Constraint("Coincident", 21, 2, 22, 1),
    Sketcher.Constraint("Coincident", 22, 2, 23, 1),
    Sketcher.Constraint("Coincident", 23, 2, 24, 1),
    Sketcher.Constraint("Coincident", 24, 2, 25, 1),
    Sketcher.Constraint("Coincident", 25, 2, 26, 1),
    Sketcher.Constraint("Coincident", 26, 2, 27, 1),
    Sketcher.Constraint("Coincident", 27, 2, 28, 1),
    Sketcher.Constraint("Coincident", 28, 2, 29, 1),
    Sketcher.Constraint("Coincident", 29, 2, 18, 1),
    Sketcher.Constraint("Coincident", 30, 2, 31, 1),
    Sketcher.Constraint("Coincident", 31, 2, 32, 1),
    Sketcher.Constraint("Coincident", 32, 2, 33, 1),
    Sketcher.Constraint("Coincident", 33, 2, 34, 1),
    Sketcher.Constraint("Coincident", 34, 2, 35, 1),
    Sketcher.Constraint("Coincident", 35, 2, 36, 1),
    Sketcher.Constraint("Coincident", 36, 2, 37, 1),
    Sketcher.Constraint("Coincident", 37, 2, 38, 1),
    Sketcher.Constraint("Coincident", 38, 2, 39, 1),
    Sketcher.Constraint("Coincident", 39, 2, 30, 1),
    Sketcher.Constraint("Coincident", 40, 2, 41, 1),
    Sketcher.Constraint("Coincident", 41, 2, 42, 1),
    Sketcher.Constraint("Coincident", 42, 2, 43, 1),
    Sketcher.Constraint("Coincident", 43, 2, 44, 1),
    Sketcher.Constraint("Coincident", 44, 2, 45, 1),
    Sketcher.Constraint("Coincident", 45, 2, 46, 1),
    Sketcher.Constraint("Coincident", 46, 2, 47, 1),
    Sketcher.Constraint("Coincident", 47, 2, 40, 1),
    Sketcher.Constraint("Horizontal", 0),
    Sketcher.Constraint("Vertical", 1),
    Sketcher.Constraint("Horizontal", 2),
    Sketcher.Constraint("Vertical", 3),
    Sketcher.Constraint("Horizontal", 4),
    Sketcher.Constraint("Vertical", 5),
    Sketcher.Constraint("Horizontal", 6),
    Sketcher.Constraint("Vertical", 7),
    Sketcher.Constraint("Vertical", 8),
    Sketcher.Constraint("Horizontal", 9),
    Sketcher.Constraint("Vertical", 10),
    Sketcher.Constraint("Horizontal", 11),
    Sketcher.Constraint("Vertical", 12),
    Sketcher.Constraint("Horizontal", 13),
    Sketcher.Constraint("Vertical", 14),
    Sketcher.Constraint("Horizontal", 15),
    Sketcher.Constraint("Vertical", 16),
    Sketcher.Constraint("Horizontal", 17),
    Sketcher.Constraint("Vertical", 18),
    Sketcher.Constraint("Horizontal", 19),
    Sketcher.Constraint("Vertical", 20),
    Sketcher.Constraint("Horizontal", 21),
    Sketcher.Constraint("Vertical", 22),
    Sketcher.Constraint("Horizontal", 23),
    Sketcher.Constraint("Vertical", 24),
    Sketcher.Constraint("Horizontal", 25),
    Sketcher.Constraint("Vertical", 26),
    Sketcher.Constraint("Horizontal", 27),
    Sketcher.Constraint("Vertical", 28),
    Sketcher.Constraint("Horizontal", 29),
    Sketcher.Constraint("Horizontal", 30),
    Sketcher.Constraint("Vertical", 31),
    Sketcher.Constraint("Horizontal", 32),
    Sketcher.Constraint("Vertical", 33),
    Sketcher.Constraint("Horizontal", 34),
    Sketcher.Constraint("Vertical", 35),
    Sketcher.Constraint("Horizontal", 36),
    Sketcher.Constraint("Vertical", 37),
    Sketcher.Constraint("Horizontal", 38),
    Sketcher.Constraint("Vertical", 39),
    Sketcher.Constraint("Horizontal", 40),
    Sketcher.Constraint("Vertical", 41),
    Sketcher.Constraint("Horizontal", 42),
    Sketcher.Constraint("Vertical", 43),
    Sketcher.Constraint("Horizontal", 44),
    Sketcher.Constraint("Vertical", 45),
    Sketcher.Constraint("Horizontal", 46),
    Sketcher.Constraint("Vertical", 47),
    Sketcher.Constraint("PointOnObject", 1, 2, -1),
    Sketcher.Constraint("PointOnObject", 18, 2, -1),
    Sketcher.Constraint("PointOnObject", 40, 2, -1),
    Sketcher.Constraint("Horizontal", 13, 2, 16, 2),
    Sketcher.Constraint("Horizontal", 6, 2, 26, 2),
    Sketcher.Constraint("Horizontal", 15, 2, 30, 2),
    Sketcher.Constraint("Horizontal", 17, 2, 31, 2),
    Sketcher.Constraint("Horizontal", 32, 2, 37, 2),
    Sketcher.Constraint("Horizontal", 7, 2, 41, 2),
    Sketcher.Constraint("Vertical", 3, 2, 6, 2),
    Sketcher.Constraint("Vertical", 10, 2, 15, 2),
    Sketcher.Constraint("Vertical", 20, 2, 23, 2),
    Sketcher.Constraint("Vertical", 18, 2, 25, 2),
    Sketcher.Constraint("Vertical", 35, 2, 38, 2),
    Sketcher.Constraint("Equal", 9, 15),
    Sketcher.Constraint("Equal", 23, 27),
    Sketcher.Constraint("Equal", 17, 30),
    Sketcher.Constraint("Equal", 22, 28),
    Sketcher.Constraint("DistanceX", 9, 1, 9, 2, Q("0.5 in")),
    Sketcher.Constraint("DistanceX", 19, 1, 19, 2, Q("1.5 in")),
    Sketcher.Constraint("DistanceX", 0, 2, 0, 1, 8.158911),
    Sketcher.Constraint("DistanceX", 4, 1, 4, 2, 6.28439),
    Sketcher.Constraint("DistanceX", 11, 1, 11, 2, 6.418729),
    Sketcher.Constraint("DistanceX", 21, 1, 21, 2, 4.38826),
    Sketcher.Constraint("DistanceX", 36, 1, 36, 2, 13.52815),
    Sketcher.Constraint("DistanceX", 40, 1, 40, 2, 4.760291),
    Sketcher.Constraint("DistanceX", 42, 2, 42, 1, 5.691312),
    Sketcher.Constraint("DistanceX", 44, 2, 44, 1, 8.751989),
    Sketcher.Constraint("DistanceY", 3, 1, 3, 2, 3.409318),
    Sketcher.Constraint("DistanceY", 10, 1, 10, 2, 4.714821),
    Sketcher.Constraint("DistanceY", 20, 1, 20, 2, 4.209492),
    Sketcher.Constraint("DistanceY", 26, 2, 26, 1, 5.120619),
    Sketcher.Constraint("DistanceY", 35, 2, 35, 1, 4.935939),
    Sketcher.Constraint("DistanceY", 47, 2, 47, 1, 3.409321),
    Sketcher.Constraint("DistanceX", 8, 2, -1, 1, 46.823),
    Sketcher.Constraint("DistanceY", 43, 2, 37, 2, 15.9358),
    Sketcher.Constraint("DistanceX", 32, 1, 32, 2, 5.598756),
    Sketcher.Constraint("DistanceY", 1, 2, 1, 1, 12.952287),
    Sketcher.Constraint("DistanceY", 5, 1, 5, 2, 15.594605),
    Sketcher.Constraint("DistanceY", 8, 2, 8, 1, 9.684887),
    Sketcher.Constraint("DistanceY", 14, 1, 14, 2, 10.802373),
    Sketcher.Constraint("DistanceY", 18, 2, 18, 1, 3.511225),
    Sketcher.Constraint("DistanceY", 33, 2, 33, 1, 5.493937),
    Sketcher.Constraint("DistanceY", 43, 1, 43, 2, 2.560307),
    Sketcher.Constraint("DistanceX", 2, 2, -1, 1, 50.086431),
    Sketcher.Constraint("DistanceX", -1, 1, 32, 2, 25.05153),
    Sketcher.Constraint("DistanceX", 4, 2, 18, 2, 23.706948),
    Sketcher.Constraint("DistanceX", 36, 2, 40, 2, 10.47423),
])
pocket1 = body.newObject("PartDesign::Pocket", "Pocket")
pocket1.Profile = sketch3
pocket1.Length = 8.92661

doc.recompute()
